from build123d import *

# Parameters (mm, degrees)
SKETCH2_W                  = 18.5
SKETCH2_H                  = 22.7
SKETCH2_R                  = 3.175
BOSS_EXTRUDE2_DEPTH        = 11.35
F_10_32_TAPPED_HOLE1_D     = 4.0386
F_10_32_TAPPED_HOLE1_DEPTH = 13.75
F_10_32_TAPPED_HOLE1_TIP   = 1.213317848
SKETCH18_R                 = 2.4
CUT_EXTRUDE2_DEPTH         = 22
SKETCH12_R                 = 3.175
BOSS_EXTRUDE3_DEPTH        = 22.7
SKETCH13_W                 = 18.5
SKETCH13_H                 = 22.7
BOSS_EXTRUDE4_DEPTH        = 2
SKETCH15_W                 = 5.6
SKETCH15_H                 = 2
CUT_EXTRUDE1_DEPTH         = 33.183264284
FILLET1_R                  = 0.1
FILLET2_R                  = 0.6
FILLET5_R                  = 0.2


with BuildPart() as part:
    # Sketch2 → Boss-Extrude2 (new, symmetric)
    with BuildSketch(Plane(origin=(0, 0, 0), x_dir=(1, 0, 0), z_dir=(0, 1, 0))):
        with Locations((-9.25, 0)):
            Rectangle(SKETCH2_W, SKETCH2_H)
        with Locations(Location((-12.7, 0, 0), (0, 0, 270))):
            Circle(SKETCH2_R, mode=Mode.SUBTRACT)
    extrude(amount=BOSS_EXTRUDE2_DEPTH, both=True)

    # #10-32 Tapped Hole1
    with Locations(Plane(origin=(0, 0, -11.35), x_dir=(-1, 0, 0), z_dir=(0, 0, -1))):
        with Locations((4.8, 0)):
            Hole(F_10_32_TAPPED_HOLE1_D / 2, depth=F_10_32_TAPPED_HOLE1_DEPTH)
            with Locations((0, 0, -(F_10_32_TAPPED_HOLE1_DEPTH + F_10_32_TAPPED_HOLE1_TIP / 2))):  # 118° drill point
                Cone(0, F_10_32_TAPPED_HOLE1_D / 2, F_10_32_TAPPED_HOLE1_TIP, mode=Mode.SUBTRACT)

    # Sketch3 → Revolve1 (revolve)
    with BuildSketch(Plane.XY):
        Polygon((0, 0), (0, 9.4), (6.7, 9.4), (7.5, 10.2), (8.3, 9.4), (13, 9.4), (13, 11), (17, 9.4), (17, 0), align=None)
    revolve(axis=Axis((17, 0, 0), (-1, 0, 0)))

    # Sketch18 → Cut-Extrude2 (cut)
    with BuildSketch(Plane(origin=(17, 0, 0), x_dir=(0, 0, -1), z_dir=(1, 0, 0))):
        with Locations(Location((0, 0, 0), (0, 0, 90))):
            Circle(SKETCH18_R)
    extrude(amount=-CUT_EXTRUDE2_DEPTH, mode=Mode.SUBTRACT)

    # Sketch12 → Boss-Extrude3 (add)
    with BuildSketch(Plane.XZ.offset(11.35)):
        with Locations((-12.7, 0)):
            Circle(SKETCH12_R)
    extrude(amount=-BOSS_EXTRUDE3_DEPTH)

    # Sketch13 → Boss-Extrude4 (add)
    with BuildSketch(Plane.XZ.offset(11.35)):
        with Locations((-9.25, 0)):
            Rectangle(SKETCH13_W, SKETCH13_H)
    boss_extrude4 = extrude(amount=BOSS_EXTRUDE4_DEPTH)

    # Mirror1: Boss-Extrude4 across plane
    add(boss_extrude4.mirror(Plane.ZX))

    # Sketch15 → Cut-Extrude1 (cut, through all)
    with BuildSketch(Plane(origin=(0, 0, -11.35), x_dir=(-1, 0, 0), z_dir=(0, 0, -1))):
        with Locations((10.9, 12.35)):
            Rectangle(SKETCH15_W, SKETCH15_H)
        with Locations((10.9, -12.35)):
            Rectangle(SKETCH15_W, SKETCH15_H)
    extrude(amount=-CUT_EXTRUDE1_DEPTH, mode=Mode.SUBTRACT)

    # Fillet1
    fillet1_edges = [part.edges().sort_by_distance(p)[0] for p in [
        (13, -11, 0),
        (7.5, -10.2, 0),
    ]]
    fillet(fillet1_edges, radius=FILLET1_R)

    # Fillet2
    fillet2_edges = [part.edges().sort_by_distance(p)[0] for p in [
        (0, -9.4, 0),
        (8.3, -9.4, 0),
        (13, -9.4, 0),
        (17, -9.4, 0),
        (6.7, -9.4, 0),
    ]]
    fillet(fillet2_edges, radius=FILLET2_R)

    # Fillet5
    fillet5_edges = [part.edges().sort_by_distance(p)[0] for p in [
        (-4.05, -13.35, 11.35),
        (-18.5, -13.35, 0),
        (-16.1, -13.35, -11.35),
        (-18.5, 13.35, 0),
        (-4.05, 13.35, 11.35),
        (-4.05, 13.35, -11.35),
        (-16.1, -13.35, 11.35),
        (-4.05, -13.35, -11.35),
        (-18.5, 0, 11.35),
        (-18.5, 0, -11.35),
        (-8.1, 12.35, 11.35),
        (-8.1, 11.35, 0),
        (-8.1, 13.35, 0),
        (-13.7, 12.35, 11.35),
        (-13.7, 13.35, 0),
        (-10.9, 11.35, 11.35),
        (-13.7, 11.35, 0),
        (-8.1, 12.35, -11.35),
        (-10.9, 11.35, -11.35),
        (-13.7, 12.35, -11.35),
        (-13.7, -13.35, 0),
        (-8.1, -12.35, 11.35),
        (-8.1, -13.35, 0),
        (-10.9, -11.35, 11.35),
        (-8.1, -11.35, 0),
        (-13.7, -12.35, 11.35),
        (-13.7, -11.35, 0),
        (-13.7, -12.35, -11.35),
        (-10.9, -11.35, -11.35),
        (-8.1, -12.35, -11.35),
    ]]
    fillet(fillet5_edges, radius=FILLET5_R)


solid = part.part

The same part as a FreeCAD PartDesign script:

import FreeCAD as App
import Part
import Sketcher
Q = App.Units.Quantity


def edges_at(feature, points):
    """Names of the edges that pass closest to the given points."""
    edges = feature.Shape.Edges
    near = lambda p: min(range(len(edges)), key=lambda i: edges[i].distToShape(Part.Vertex(*p))[0])
    return sorted({f"Edge{near(p) + 1}" for p in points})


def add_polygon(sketch, points):
    """Adds a closed chain of lines whose ends are joined by coincident constraints."""
    first, n = sketch.GeometryCount, len(points)
    for a, b in zip(points, points[1:] + points[:1]):
        sketch.addGeometry(Part.LineSegment(App.Vector(*a, 0), App.Vector(*b, 0)), False)
    for i in range(n):
        sketch.addConstraint(Sketcher.Constraint("Coincident", first + i, 2, first + (i + 1) % n, 1))

doc = App.newDocument("Part")
body = doc.addObject("PartDesign::Body", "Body")

# Sketch on XZ plane
sketch1 = body.newObject("Sketcher::SketchObject", "Sketch")
sketch1.AttachmentSupport = (doc.getObject("XZ_Plane"), [""])
sketch1.MapMode = "FlatFace"
add_polygon(sketch1, [(-18.5, -11.35), (-18.5, 11.35), (0, 11.35), (0, -11.35)])  # lines 0-3
sketch1.addGeometry(Part.Circle(App.Vector(-12.7, 0, 0), App.Vector(0, 0, 1), 3.175), False)  # 4
sketch1.addConstraint([
    Sketcher.Constraint("Vertical", 0),
    Sketcher.Constraint("Horizontal", 1),
    Sketcher.Constraint("Vertical", 2),
    Sketcher.Constraint("Horizontal", 3),
    Sketcher.Constraint("Symmetric", 1, 2, 2, 2, -1, 1),
    Sketcher.Constraint("PointOnObject", 4, 3, -1),
    Sketcher.Constraint("Diameter", 4, Q("6.35 mm")),
    Sketcher.Constraint("DistanceX", 1, 1, 1, 2, Q("18.5 mm")),
    Sketcher.Constraint("DistanceY", 0, 1, 0, 2, Q("22.7 mm")),
    Sketcher.Constraint("DistanceX", 4, 3, -1, 1, Q("12.7 mm")),
])
pad1 = body.newObject("PartDesign::Pad", "Pad")
pad1.Profile = sketch1
pad1.Length = 22.7
pad1.Midplane = True

# Sketch on XY plane
sketch2 = body.newObject("Sketcher::SketchObject", "Sketch001")
sketch2.AttachmentSupport = (doc.getObject("XY_Plane"), [""])
sketch2.MapMode = "FlatFace"
sketch2.AttachmentOffset = App.Placement(App.Vector(0, 0, -11.35), App.Rotation())
sketch2.addGeometry(Part.Circle(App.Vector(-4.8, 0, 0), App.Vector(0, 0, 1), 2.0193), False)
sketch2.addConstraint([
    Sketcher.Constraint("PointOnObject", 0, 3, -1),
    Sketcher.Constraint("Diameter", 0, Q("4.0386 mm")),
    Sketcher.Constraint("DistanceX", 0, 3, -1, 1, Q("4.8 mm")),
])
doc.recompute()
hole = body.newObject("PartDesign::Hole", "Hole")
hole.Profile = sketch2
hole.ThreadType = "None"
hole.Diameter = 4.0386
hole.DepthType = "Dimension"
hole.Depth = 13.75
hole.DrillPoint = "Angled"
hole.DrillPointAngle = 118
hole.Reversed = True

# Sketch on XY plane
sketch3 = body.newObject("Sketcher::SketchObject", "Sketch002")
sketch3.AttachmentSupport = (doc.getObject("XY_Plane"), [""])
sketch3.MapMode = "FlatFace"
add_polygon(sketch3, [(0, 9.4), (0, 0), (17, 0), (17, 9.4), (13, 11), (13, 9.4), (8.3, 9.4), (7.5, 10.2), (6.7, 9.4)])  # lines 0-8
sketch3.addConstraint([
    Sketcher.Constraint("Vertical", 0),
    Sketcher.Constraint("Horizontal", 1),
    Sketcher.Constraint("Vertical", 2),
    Sketcher.Constraint("Vertical", 4),
    Sketcher.Constraint("Horizontal", 5),
    Sketcher.Constraint("Horizontal", 8),
    Sketcher.Constraint("Coincident", 0, 2, -1, 1),
    Sketcher.Constraint("Perpendicular", 6, 7),
    Sketcher.Constraint("Horizontal", 2, 2, 4, 2),
    Sketcher.Constraint("Horizontal", 5, 2, 7, 2),
    Sketcher.Constraint("Equal", 6, 7),
    Sketcher.Constraint("DistanceX", 1, 1, 1, 2, Q("17 mm")),
    Sketcher.Constraint("DistanceX", 5, 2, 5, 1, Q("4.7 mm")),
    Sketcher.Constraint("DistanceX", 8, 2, 8, 1, Q("6.7 mm")),
    Sketcher.Constraint("DistanceY", 0, 2, 0, 1, Q("9.4 mm")),
    Sketcher.Constraint("DistanceY", 4, 2, 4, 1, Q("1.6 mm")),
    Sketcher.Constraint("DistanceX", -1, 1, 3, 2, Q("13 mm")),
])
revolution = body.newObject("PartDesign::Revolution", "Revolution")
revolution.Profile = sketch3
revolution.ReferenceAxis = (sketch3, ["H_Axis"])
revolution.Angle = 360

# Sketch on YZ plane
sketch4 = body.newObject("Sketcher::SketchObject", "Sketch003")
sketch4.AttachmentSupport = (doc.getObject("YZ_Plane"), [""])
sketch4.MapMode = "FlatFace"
sketch4.AttachmentOffset = App.Placement(App.Vector(0, 0, 17), App.Rotation())
sketch4.addGeometry(Part.Circle(App.Vector(0, 0, 0), App.Vector(0, 0, 1), 2.4), False)
sketch4.addConstraint([
    Sketcher.Constraint("Coincident", 0, 3, -1, 1),
    Sketcher.Constraint("Diameter", 0, Q("4.8 mm")),
])
pocket1 = body.newObject("PartDesign::Pocket", "Pocket")
pocket1.Profile = sketch4
pocket1.Length = 22

# Sketch on XZ plane
sketch5 = body.newObject("Sketcher::SketchObject", "Sketch004")
sketch5.AttachmentSupport = (doc.getObject("XZ_Plane"), [""])
sketch5.MapMode = "FlatFace"
sketch5.AttachmentOffset = App.Placement(App.Vector(0, 0, 11.35), App.Rotation())
sketch5.addGeometry(Part.Circle(App.Vector(-12.7, 0, 0), App.Vector(0, 0, 1), 3.175), False)
sketch5.addConstraint([
    Sketcher.Constraint("PointOnObject", 0, 3, -1),
    Sketcher.Constraint("Diameter", 0, Q("6.35 mm")),
    Sketcher.Constraint("DistanceX", 0, 3, -1, 1, Q("12.7 mm")),
])
pad2 = body.newObject("PartDesign::Pad", "Pad001")
pad2.Profile = sketch5
pad2.Length = 22.7
pad2.Reversed = True

# Sketch on XZ plane
sketch6 = body.newObject("Sketcher::SketchObject", "Sketch005")
sketch6.AttachmentSupport = (doc.getObject("XZ_Plane"), [""])
sketch6.MapMode = "FlatFace"
sketch6.AttachmentOffset = App.Placement(App.Vector(0, 0, 11.35), App.Rotation())
add_polygon(sketch6, [(-18.5, 11.35), (-18.5, -11.35), (0, -11.35), (0, 11.35)])  # lines 0-3
sketch6.addConstraint([
    Sketcher.Constraint("Vertical", 0),
    Sketcher.Constraint("Horizontal", 1),
    Sketcher.Constraint("Vertical", 2),
    Sketcher.Constraint("Horizontal", 3),
    Sketcher.Constraint("Symmetric", 1, 2, 2, 2, -1, 1),
    Sketcher.Constraint("DistanceX", 1, 1, 1, 2, Q("18.5 mm")),
    Sketcher.Constraint("DistanceY", 0, 2, 0, 1, Q("22.7 mm")),
])
pad3 = body.newObject("PartDesign::Pad", "Pad002")
pad3.Profile = sketch6
pad3.Length = 2
doc.recompute()

mirrored = body.newObject("PartDesign::Mirrored", "Mirrored")
mirrored.Originals = [pad3]
mirrored.MirrorPlane = (doc.getObject("XZ_Plane"), [""])
body.Tip = mirrored

# Sketch on XY plane
sketch7 = body.newObject("Sketcher::SketchObject", "Sketch006")
sketch7.AttachmentSupport = (doc.getObject("XY_Plane"), [""])
sketch7.MapMode = "FlatFace"
sketch7.AttachmentOffset = App.Placement(App.Vector(0, 0, -11.35), App.Rotation())
add_polygon(sketch7, [(-8.1, 13.35), (-8.1, 11.35), (-13.7, 11.35), (-13.7, 13.35)])  # lines 0-3
add_polygon(sketch7, [(-8.1, -11.35), (-8.1, -13.35), (-13.7, -13.35), (-13.7, -11.35)])  # lines 4-7
sketch7.addConstraint([
    Sketcher.Constraint("Vertical", 0),
    Sketcher.Constraint("Horizontal", 1),
    Sketcher.Constraint("Vertical", 2),
    Sketcher.Constraint("Horizontal", 3),
    Sketcher.Constraint("Vertical", 4),
    Sketcher.Constraint("Horizontal", 5),
    Sketcher.Constraint("Vertical", 6),
    Sketcher.Constraint("Horizontal", 7),
    Sketcher.Constraint("Symmetric", 3, 2, 4, 2, -1),
    Sketcher.Constraint("Symmetric", 1, 2, 6, 2, -1),
    Sketcher.Constraint("DistanceY", 0, 2, 0, 1, Q("2 mm")),
    Sketcher.Constraint("DistanceX", 1, 2, 1, 1, Q("5.6 mm")),
    Sketcher.Constraint("DistanceX", 0, 2, -1, 1, Q("8.1 mm")),
    Sketcher.Constraint("DistanceY", 4, 2, 0, 2, Q("24.7 mm")),
])
pocket2 = body.newObject("PartDesign::Pocket", "Pocket001")
pocket2.Profile = sketch7
pocket2.Type = "ThroughAll"
pocket2.Reversed = True
doc.recompute()

fillet = body.newObject("PartDesign::Fillet", "Fillet")
fillet.Base = (pocket2, edges_at(pocket2, [(13, -11, 0), (7.5, -10.2, 0)]))
fillet.Radius = 0.1
doc.recompute()

fillet2 = body.newObject("PartDesign::Fillet", "Fillet001")
fillet2.Base = (fillet, edges_at(fillet, [
    (0, -9.4, 0),
    (8.3, -9.4, 0),
    (13, -9.4, 0),
    (17, -9.4, 0),
    (6.7, -9.4, 0),
]))
fillet2.Radius = 0.6
doc.recompute()

fillet3 = body.newObject("PartDesign::Fillet", "Fillet002")
fillet3.Base = (fillet2, edges_at(fillet2, [
    (-4.05, -13.35, 11.35),
    (-18.5, -13.35, 0),
    (-16.1, -13.35, -11.35),
    (-18.5, 13.35, 0),
    (-4.05, 13.35, 11.35),
    (-4.05, 13.35, -11.35),
    (-16.1, -13.35, 11.35),
    (-4.05, -13.35, -11.35),
    (-18.5, 0, 11.35),
    (-18.5, 0, -11.35),
    (-8.1, 12.35, 11.35),
    (-8.1, 11.35, 0),
    (-8.1, 13.35, 0),
    (-13.7, 12.35, 11.35),
    (-13.7, 13.35, 0),
    (-10.9, 11.35, 11.35),
    (-13.7, 11.35, 0),
    (-8.1, 12.35, -11.35),
    (-10.9, 11.35, -11.35),
    (-13.7, 12.35, -11.35),
    (-13.7, -13.35, 0),
    (-8.1, -12.35, 11.35),
    (-8.1, -13.35, 0),
    (-10.9, -11.35, 11.35),
    (-8.1, -11.35, 0),
    (-13.7, -12.35, 11.35),
    (-13.7, -11.35, 0),
    (-13.7, -12.35, -11.35),
    (-10.9, -11.35, -11.35),
    (-8.1, -12.35, -11.35),
]))
fillet3.Radius = 0.2

doc.recompute()
